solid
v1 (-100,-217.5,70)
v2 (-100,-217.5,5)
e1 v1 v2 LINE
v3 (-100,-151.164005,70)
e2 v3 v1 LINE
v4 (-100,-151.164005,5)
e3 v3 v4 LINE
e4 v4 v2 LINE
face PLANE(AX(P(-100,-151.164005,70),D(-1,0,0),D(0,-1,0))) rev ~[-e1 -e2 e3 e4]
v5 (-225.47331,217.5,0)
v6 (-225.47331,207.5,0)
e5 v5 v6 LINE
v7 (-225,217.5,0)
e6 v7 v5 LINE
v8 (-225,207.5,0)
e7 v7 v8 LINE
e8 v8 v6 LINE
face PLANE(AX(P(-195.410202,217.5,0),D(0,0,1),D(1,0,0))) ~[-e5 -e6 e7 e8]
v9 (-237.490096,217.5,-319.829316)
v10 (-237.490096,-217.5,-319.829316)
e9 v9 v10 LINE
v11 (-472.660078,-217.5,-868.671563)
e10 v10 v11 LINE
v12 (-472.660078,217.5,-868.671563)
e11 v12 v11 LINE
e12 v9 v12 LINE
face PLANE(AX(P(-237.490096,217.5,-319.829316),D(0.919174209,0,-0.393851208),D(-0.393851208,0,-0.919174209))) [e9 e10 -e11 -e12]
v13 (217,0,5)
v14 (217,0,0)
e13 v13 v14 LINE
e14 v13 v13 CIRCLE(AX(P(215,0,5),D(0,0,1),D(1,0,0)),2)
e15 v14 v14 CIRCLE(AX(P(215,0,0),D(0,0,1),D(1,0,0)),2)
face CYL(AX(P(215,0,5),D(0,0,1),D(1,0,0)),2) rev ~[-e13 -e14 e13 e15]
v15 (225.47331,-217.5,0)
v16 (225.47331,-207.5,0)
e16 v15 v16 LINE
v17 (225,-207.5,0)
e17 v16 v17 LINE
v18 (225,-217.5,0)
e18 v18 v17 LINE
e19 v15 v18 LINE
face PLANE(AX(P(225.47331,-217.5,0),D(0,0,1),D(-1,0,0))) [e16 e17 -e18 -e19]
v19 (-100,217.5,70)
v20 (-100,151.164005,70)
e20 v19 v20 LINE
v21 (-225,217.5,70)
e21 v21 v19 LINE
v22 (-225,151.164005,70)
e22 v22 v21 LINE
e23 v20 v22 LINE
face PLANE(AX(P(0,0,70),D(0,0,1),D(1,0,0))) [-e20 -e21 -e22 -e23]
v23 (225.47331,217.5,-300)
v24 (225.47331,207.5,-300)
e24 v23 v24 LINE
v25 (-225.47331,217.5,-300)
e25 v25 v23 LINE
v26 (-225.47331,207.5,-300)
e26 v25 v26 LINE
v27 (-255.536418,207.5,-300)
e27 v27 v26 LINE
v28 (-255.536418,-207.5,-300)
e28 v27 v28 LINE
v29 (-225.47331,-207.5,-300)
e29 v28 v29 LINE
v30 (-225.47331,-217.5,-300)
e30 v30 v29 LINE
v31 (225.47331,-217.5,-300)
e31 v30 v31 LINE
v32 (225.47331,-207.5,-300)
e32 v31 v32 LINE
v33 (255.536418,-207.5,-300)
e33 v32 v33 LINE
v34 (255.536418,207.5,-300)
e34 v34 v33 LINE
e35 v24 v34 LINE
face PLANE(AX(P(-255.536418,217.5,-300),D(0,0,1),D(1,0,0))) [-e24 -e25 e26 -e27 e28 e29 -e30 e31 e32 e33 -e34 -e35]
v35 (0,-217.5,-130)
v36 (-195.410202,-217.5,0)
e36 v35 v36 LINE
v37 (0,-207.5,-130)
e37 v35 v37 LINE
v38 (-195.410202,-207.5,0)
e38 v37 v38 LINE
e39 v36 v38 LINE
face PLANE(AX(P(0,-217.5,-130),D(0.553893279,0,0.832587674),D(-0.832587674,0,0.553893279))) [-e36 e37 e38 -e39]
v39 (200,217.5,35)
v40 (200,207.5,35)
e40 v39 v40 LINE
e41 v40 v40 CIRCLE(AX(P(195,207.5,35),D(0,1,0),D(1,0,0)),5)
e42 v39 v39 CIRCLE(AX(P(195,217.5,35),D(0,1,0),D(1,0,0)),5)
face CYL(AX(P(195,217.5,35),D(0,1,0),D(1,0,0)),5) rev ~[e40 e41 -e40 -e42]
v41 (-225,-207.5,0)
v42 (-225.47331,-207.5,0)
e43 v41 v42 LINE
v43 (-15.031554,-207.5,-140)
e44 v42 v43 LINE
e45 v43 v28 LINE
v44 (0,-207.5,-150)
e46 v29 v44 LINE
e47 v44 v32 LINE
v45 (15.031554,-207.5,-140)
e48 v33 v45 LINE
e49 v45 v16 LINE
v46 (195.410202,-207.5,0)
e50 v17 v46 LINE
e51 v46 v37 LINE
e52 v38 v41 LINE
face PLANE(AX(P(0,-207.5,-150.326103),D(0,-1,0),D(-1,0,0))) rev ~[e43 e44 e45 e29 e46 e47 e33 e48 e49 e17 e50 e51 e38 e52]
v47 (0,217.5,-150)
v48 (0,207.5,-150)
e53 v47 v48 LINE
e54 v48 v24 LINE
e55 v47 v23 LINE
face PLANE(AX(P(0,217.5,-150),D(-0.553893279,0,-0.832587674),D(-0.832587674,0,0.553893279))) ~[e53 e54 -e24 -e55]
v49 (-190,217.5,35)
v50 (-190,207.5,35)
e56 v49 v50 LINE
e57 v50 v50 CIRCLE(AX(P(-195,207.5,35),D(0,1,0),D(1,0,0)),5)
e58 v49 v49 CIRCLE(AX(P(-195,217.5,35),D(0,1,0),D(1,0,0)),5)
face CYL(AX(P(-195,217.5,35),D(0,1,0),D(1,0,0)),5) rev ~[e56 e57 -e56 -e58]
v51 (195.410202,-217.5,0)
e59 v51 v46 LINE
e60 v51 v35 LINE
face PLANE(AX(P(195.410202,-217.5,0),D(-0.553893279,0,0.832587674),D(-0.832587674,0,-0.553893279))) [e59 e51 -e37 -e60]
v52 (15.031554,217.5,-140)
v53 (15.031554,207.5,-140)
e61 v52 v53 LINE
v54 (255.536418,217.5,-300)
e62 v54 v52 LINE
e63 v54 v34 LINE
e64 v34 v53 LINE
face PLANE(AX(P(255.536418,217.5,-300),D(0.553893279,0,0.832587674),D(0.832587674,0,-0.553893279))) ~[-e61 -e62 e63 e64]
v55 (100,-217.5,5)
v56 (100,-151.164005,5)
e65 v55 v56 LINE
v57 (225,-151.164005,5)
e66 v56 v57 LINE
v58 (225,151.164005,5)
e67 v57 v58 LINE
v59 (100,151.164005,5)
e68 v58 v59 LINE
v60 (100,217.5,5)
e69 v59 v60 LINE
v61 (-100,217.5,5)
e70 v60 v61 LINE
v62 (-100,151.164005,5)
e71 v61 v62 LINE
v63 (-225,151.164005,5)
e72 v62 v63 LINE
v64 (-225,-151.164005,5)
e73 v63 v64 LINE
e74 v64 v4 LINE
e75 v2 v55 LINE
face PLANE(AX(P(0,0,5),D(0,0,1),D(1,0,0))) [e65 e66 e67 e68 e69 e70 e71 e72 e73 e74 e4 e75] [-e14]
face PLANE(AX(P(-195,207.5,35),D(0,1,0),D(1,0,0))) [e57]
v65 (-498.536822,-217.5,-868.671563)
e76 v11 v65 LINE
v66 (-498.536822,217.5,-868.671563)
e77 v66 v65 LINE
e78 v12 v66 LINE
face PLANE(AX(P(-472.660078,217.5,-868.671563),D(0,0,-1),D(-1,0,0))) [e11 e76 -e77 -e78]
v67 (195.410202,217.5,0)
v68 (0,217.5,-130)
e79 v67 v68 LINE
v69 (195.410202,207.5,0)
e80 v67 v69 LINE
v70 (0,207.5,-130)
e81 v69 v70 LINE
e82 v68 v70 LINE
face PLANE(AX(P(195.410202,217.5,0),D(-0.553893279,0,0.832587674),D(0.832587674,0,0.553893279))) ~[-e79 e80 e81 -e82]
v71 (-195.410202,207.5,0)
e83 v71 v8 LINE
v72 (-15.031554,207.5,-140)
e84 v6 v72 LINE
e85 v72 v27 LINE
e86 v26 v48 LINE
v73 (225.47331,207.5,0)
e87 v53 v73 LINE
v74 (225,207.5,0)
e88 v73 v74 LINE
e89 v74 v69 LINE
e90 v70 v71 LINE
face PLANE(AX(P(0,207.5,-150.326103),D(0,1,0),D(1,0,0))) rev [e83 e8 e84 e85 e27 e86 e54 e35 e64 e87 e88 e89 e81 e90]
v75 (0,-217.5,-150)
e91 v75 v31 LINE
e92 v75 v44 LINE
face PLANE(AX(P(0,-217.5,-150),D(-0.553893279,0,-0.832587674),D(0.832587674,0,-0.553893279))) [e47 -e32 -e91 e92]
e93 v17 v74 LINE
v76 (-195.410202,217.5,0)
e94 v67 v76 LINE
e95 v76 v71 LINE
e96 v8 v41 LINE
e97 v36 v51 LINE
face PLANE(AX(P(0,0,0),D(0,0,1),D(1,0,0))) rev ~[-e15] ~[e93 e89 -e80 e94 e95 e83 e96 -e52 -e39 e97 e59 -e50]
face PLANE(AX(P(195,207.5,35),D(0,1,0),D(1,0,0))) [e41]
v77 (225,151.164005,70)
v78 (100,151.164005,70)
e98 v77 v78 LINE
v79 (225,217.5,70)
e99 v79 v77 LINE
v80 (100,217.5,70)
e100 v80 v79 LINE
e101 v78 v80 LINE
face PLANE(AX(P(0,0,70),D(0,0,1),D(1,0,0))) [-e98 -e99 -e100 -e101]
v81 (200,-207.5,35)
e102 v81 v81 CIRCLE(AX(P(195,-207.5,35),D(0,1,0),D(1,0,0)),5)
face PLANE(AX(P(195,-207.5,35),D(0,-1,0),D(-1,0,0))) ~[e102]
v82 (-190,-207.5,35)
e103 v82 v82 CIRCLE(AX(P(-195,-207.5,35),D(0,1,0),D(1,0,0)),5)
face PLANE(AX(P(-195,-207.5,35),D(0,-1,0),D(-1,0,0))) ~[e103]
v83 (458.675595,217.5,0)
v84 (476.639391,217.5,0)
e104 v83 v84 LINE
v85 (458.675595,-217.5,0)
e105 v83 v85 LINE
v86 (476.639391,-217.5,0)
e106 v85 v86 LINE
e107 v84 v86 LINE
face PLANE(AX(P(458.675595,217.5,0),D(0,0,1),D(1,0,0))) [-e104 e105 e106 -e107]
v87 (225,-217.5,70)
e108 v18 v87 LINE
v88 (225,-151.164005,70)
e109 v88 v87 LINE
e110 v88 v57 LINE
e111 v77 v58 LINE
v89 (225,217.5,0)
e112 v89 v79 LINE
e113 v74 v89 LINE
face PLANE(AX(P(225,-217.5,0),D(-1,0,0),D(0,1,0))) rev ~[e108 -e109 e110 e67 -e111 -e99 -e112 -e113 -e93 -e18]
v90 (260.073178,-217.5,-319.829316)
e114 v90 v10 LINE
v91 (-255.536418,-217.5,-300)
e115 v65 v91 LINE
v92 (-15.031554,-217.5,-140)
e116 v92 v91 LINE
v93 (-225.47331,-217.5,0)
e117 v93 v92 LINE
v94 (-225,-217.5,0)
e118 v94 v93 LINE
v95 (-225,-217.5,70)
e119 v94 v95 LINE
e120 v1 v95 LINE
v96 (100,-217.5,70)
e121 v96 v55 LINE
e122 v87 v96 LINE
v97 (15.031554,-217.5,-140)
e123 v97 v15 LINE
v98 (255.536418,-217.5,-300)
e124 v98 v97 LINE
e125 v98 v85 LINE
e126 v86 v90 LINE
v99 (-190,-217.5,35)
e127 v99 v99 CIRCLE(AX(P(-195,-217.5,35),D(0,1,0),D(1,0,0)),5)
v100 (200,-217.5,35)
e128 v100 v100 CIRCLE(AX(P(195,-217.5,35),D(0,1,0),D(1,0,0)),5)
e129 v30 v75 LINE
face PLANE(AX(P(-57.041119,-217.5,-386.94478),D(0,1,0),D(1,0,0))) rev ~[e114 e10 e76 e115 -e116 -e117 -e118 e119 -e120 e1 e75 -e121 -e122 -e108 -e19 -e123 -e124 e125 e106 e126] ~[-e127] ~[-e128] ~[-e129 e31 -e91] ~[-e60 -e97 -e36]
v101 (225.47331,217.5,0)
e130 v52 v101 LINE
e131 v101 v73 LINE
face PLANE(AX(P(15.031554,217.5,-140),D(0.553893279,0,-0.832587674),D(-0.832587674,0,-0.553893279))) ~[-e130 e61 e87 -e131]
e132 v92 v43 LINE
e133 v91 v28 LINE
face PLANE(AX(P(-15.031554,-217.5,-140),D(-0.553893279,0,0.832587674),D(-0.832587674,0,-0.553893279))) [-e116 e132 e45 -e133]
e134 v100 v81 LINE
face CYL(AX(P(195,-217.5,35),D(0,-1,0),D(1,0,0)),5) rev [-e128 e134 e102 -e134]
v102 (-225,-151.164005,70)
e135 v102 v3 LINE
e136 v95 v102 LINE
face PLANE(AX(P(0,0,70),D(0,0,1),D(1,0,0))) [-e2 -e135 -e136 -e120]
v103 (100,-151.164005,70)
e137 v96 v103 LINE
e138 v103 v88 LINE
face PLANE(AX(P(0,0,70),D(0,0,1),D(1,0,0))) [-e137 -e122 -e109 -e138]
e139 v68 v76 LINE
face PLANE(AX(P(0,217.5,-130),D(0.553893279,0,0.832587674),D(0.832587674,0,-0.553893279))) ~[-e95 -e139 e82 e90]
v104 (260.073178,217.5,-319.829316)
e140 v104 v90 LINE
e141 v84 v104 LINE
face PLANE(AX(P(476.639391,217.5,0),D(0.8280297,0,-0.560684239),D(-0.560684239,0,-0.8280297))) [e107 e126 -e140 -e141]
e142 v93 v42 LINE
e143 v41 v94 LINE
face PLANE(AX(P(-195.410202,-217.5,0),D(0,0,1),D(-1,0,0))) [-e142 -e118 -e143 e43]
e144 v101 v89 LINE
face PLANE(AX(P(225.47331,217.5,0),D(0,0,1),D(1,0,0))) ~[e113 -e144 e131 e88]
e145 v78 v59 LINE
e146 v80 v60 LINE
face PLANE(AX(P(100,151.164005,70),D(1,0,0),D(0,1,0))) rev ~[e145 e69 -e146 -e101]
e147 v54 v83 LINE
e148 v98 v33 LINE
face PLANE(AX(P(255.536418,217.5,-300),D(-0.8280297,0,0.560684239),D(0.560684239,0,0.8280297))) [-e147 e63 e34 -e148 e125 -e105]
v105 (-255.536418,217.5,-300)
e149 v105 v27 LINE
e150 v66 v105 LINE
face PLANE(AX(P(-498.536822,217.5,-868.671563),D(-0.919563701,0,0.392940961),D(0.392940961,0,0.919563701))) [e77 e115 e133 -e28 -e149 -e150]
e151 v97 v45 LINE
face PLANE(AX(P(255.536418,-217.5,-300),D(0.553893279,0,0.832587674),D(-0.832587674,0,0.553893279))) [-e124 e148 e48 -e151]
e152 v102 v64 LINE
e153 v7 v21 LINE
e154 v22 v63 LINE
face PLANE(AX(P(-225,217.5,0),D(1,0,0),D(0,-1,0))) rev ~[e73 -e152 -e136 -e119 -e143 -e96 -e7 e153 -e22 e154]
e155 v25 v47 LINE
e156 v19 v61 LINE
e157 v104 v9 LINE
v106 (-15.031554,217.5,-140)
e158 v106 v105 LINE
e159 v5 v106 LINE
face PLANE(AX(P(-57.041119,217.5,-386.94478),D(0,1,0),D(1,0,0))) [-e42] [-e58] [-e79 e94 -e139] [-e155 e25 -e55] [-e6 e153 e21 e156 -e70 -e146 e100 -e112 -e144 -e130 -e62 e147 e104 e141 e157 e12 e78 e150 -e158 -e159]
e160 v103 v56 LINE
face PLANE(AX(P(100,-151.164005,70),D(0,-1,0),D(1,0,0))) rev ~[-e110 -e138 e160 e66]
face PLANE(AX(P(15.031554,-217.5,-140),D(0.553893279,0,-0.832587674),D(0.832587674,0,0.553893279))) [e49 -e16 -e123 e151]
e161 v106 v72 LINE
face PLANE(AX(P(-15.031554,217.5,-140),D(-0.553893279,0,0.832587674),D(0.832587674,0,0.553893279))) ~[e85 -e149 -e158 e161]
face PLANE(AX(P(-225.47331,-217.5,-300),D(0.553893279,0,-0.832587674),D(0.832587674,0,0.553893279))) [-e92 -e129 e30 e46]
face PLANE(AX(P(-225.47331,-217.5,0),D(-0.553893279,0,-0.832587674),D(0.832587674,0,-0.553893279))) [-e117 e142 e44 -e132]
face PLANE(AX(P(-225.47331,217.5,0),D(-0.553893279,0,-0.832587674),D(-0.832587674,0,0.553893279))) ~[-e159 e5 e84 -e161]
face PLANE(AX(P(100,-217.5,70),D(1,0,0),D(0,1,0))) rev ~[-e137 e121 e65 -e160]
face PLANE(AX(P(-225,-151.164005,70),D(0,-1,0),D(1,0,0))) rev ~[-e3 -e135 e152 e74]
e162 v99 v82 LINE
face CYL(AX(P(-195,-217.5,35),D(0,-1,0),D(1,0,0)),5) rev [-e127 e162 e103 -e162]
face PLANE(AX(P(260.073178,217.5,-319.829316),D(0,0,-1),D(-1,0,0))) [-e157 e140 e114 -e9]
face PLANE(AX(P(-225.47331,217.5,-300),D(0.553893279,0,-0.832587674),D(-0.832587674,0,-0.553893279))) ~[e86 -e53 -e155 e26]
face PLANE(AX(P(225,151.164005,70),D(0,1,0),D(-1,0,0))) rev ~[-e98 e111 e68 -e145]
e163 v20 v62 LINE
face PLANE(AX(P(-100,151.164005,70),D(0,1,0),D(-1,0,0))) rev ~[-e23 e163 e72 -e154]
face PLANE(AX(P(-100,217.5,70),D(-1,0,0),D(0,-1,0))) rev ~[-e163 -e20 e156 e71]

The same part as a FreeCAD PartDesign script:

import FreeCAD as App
import Part
import Sketcher

V = App.Vector
Q = App.Units.Quantity


def add_polygon(sketch, points):
    """Adds a closed chain of lines whose ends are joined by coincident constraints."""
    first, n = sketch.GeometryCount, len(points)
    for a, b in zip(points, points[1:] + points[:1]):
        sketch.addGeometry(Part.LineSegment(App.Vector(*a, 0), App.Vector(*b, 0)), False)
    for i in range(n):
        sketch.addConstraint(Sketcher.Constraint("Coincident", first + i, 2, first + (i + 1) % n, 1))

doc = App.newDocument("Part")
body = doc.addObject("PartDesign::Body", "Body")

sketch1 = body.newObject("Sketcher::SketchObject", "Sketch")
sketch1.AttachmentSupport = (doc.getObject("XY_Plane"), [""])
sketch1.MapMode = "FlatFace"
add_polygon(sketch1, [(225, 217.5), (-225, 217.5), (-225, -217.5), (225, -217.5)])
sketch1.addConstraint(Sketcher.Constraint("Horizontal", 0))
sketch1.addConstraint(Sketcher.Constraint("Vertical", 1))
sketch1.addConstraint(Sketcher.Constraint("Horizontal", 2))
sketch1.addConstraint(Sketcher.Constraint("Vertical", 3))
sketch1.addConstraint(Sketcher.Constraint("Symmetric", 0, 2, 2, 2, -1, 1))
sketch1.addConstraint(Sketcher.Constraint("DistanceX", 0, 2, 0, 1, Q("450 mm")))
sketch1.addConstraint(Sketcher.Constraint("DistanceY", 1, 2, 1, 1, Q("435 mm")))
pad1 = body.newObject("PartDesign::Pad", "Pad")
pad1.Profile = sketch1
pad1.Length = 70

sketch2 = body.newObject("Sketcher::SketchObject", "Sketch001")
sketch2.AttachmentSupport = (doc.getObject("XY_Plane"), [""])
sketch2.MapMode = "FlatFace"
sketch2.AttachmentOffset = App.Placement(V(0, 0, 70), App.Rotation())
add_polygon(sketch2, [(-100, 217.5), (-100, 151.164005), (-225, 151.164005), (-225, -151.164005), (-100, -151.164005), (-100, -217.5), (100, -217.5), (100, -151.164005), (225, -151.164005), (225, 151.164005), (100, 151.164005), (100, 217.5)])
sketch2.addConstraint(Sketcher.Constraint("Vertical", 0))
sketch2.addConstraint(Sketcher.Constraint("Horizontal", 1))
sketch2.addConstraint(Sketcher.Constraint("Vertical", 2))
sketch2.addConstraint(Sketcher.Constraint("Horizontal", 3))
sketch2.addConstraint(Sketcher.Constraint("Vertical", 4))
sketch2.addConstraint(Sketcher.Constraint("Horizontal", 5))
sketch2.addConstraint(Sketcher.Constraint("Vertical", 6))
sketch2.addConstraint(Sketcher.Constraint("Horizontal", 7))
sketch2.addConstraint(Sketcher.Constraint("Vertical", 8))
sketch2.addConstraint(Sketcher.Constraint("Horizontal", 9))
sketch2.addConstraint(Sketcher.Constraint("Vertical", 10))
sketch2.addConstraint(Sketcher.Constraint("Horizontal", 11))
sketch2.addConstraint(Sketcher.Constraint("Symmetric", 0, 2, 6, 2, -1, 1))
sketch2.addConstraint(Sketcher.Constraint("Symmetric", 2, 2, 8, 2, -1, 1))
sketch2.addConstraint(Sketcher.Constraint("Symmetric", 4, 2, 10, 2, -1, 1))
sketch2.addConstraint(Sketcher.Constraint("Symmetric", 3, 2, 6, 2, -2))
sketch2.addConstraint(Sketcher.Constraint("DistanceX", 1, 2, 1, 1, Q("125 mm")))
sketch2.addConstraint(Sketcher.Constraint("DistanceX", 5, 1, 5, 2, Q("200 mm")))
sketch2.addConstraint(Sketcher.Constraint("DistanceY", 4, 2, -1, 1, Q("217.5 mm")))
sketch2.addConstraint(Sketcher.Constraint("DistanceY", 2, 2, 2, 1, Q("302.328009 mm")))
pocket1 = body.newObject("PartDesign::Pocket", "Pocket")
pocket1.Profile = sketch2
pocket1.Type = "TwoLengths"
pocket1.Length = 1
pocket1.Length2 = 65
pocket1.Reversed = True

sketch3 = body.newObject("Sketcher::SketchObject", "Sketch002")
sketch3.AttachmentSupport = (doc.getObject("XY_Plane"), [""])
sketch3.MapMode = "FlatFace"
sketch3.AttachmentOffset = App.Placement(V(0, 0, 5), App.Rotation())
sketch3.addGeometry(Part.Circle(V(215, 0, 0), V(0, 0, 1), 2), False)
sketch3.addConstraint(Sketcher.Constraint("PointOnObject", 0, 3, -1))
sketch3.addConstraint(Sketcher.Constraint("Diameter", 0, Q("4 mm")))
sketch3.addConstraint(Sketcher.Constraint("DistanceX", -1, 1, 0, 3, Q("215 mm")))
pocket2 = body.newObject("PartDesign::Pocket", "Pocket001")
pocket2.Profile = sketch3
pocket2.Length = 10

sketch4 = body.newObject("Sketcher::SketchObject", "Sketch003")
sketch4.AttachmentSupport = (doc.getObject("XZ_Plane"), [""])
sketch4.MapMode = "FlatFace"
sketch4.AttachmentOffset = App.Placement(V(0, 0, -217.5), App.Rotation())
sketch4.addGeometry(Part.Circle(V(-195, 35, 0), V(0, 0, 1), 5), False)
sketch4.addGeometry(Part.Circle(V(195, 35, 0), V(0, 0, 1), 5), False)
sketch4.addConstraint(Sketcher.Constraint("Equal", 0, 1))
sketch4.addConstraint(Sketcher.Constraint("Symmetric", 0, 3, 1, 3, -2))
sketch4.addConstraint(Sketcher.Constraint("Diameter", 0, Q("10 mm")))
sketch4.addConstraint(Sketcher.Constraint("DistanceX", 0, 3, -1, 1, Q("195 mm")))
sketch4.addConstraint(Sketcher.Constraint("DistanceY", -1, 1, 0, 3, Q("35 mm")))
pocket3 = body.newObject("PartDesign::Pocket", "Pocket002")
pocket3.Profile = sketch4
pocket3.Length = 10
pocket3.Reversed = True
doc.recompute()

mirrored = body.newObject("PartDesign::Mirrored", "Mirrored")
mirrored.Originals = [pocket3]
mirrored.MirrorPlane = (doc.getObject("XZ_Plane"), [""])
body.Tip = mirrored

sketch5 = body.newObject("Sketcher::SketchObject", "Sketch004")
sketch5.AttachmentSupport = (doc.getObject("XZ_Plane"), [""])
sketch5.MapMode = "FlatFace"
sketch5.AttachmentOffset = App.Placement(V(0, 0, 217.5), App.Rotation())
add_polygon(sketch5, [(15.031554, -140), (225.47331, 0), (195.410202, 0), (0, -130), (-195.410202, 0), (-225.47331, 0), (-15.031554, -140), (-255.536418, -300), (-225.47331, -300), (0, -150), (225.47331, -300), (255.536418, -300)])
sketch5.addConstraint(Sketcher.Constraint("Horizontal", 1))
sketch5.addConstraint(Sketcher.Constraint("Horizontal", 4))
sketch5.addConstraint(Sketcher.Constraint("Horizontal", 7))
sketch5.addConstraint(Sketcher.Constraint("Horizontal", 10))
sketch5.addConstraint(Sketcher.Constraint("Symmetric", 1, 2, 3, 2, -1, 1))
sketch5.addConstraint(Sketcher.Constraint("Symmetric", 0, 2, 4, 2, -2))
sketch5.addConstraint(Sketcher.Constraint("Symmetric", 7, 2, 9, 2, -2))
sketch5.addConstraint(Sketcher.Constraint("Symmetric", 5, 2, 11, 2, -2))
sketch5.addConstraint(Sketcher.Constraint("PointOnObject", 2, 2, -2))
sketch5.addConstraint(Sketcher.Constraint("PointOnObject", 8, 2, -2))
sketch5.addConstraint(Sketcher.Constraint("Parallel", 0, 2))
sketch5.addConstraint(Sketcher.Constraint("Parallel", 2, 6))
sketch5.addConstraint(Sketcher.Constraint("Parallel", 6, 8))
sketch5.addConstraint(Sketcher.Constraint("Parallel", 9, 11))
sketch5.addConstraint(Sketcher.Constraint("Vertical", 4, 2, 7, 2))
sketch5.addConstraint(Sketcher.Constraint("Equal", 4, 7))
sketch5.addConstraint(Sketcher.Constraint("DistanceY", 2, 2, -1, 1, Q("130 mm")))
sketch5.addConstraint(Sketcher.Constraint("DistanceY", 5, 2, -1, 1, Q("140 mm")))
sketch5.addConstraint(Sketcher.Constraint("DistanceY", 6, 2, -1, 1, Q("300 mm")))
sketch5.addConstraint(Sketcher.Constraint("DistanceX", 1, 2, 1, 1, Q("30.063108 mm")))
pad2 = body.newObject("PartDesign::Pad", "Pad001")
pad2.Profile = sketch5
pad2.Length = 10
pad2.Reversed = True
doc.recompute()

mirrored2 = body.newObject("PartDesign::Mirrored", "Mirrored001")
mirrored2.Originals = [pad2]
mirrored2.MirrorPlane = (doc.getObject("XZ_Plane"), [""])
body.Tip = mirrored2

sketch6 = body.newObject("Sketcher::SketchObject", "Sketch005")
sketch6.AttachmentSupport = (doc.getObject("XZ_Plane"), [""])
sketch6.MapMode = "FlatFace"
sketch6.AttachmentOffset = App.Placement(V(0, 0, -217.5), App.Rotation())
add_polygon(sketch6, [(-255.536418, -300), (255.536418, -300), (458.675595, 0), (476.639391, 0), (260.073178, -319.829316), (-237.490096, -319.829316), (-472.660078, -868.671563), (-498.536822, -868.671563)])
sketch6.addConstraint(Sketcher.Constraint("Horizontal", 0))
sketch6.addConstraint(Sketcher.Constraint("Horizontal", 2))
sketch6.addConstraint(Sketcher.Constraint("Horizontal", 4))
sketch6.addConstraint(Sketcher.Constraint("Horizontal", 6))
sketch6.addConstraint(Sketcher.Constraint("PointOnObject", 1, 2, -1))
sketch6.addConstraint(Sketcher.Constraint("Parallel", 1, 3))
sketch6.addConstraint(Sketcher.Constraint("DistanceY", 0, 2, -1, 1, Q("300 mm")))
sketch6.addConstraint(Sketcher.Constraint("DistanceX", 6, 2, 3, 2, Q("758.609999 mm")))
sketch6.addConstraint(Sketcher.Constraint("Distance", 5, Q("597.103619 mm")))
sketch6.addConstraint(Sketcher.Constraint("Distance", 7, Q("618.414539 mm")))
sketch6.addConstraint(Sketcher.Constraint("DistanceX", 0, 1, 0, 2, Q("511.072836 mm")))
sketch6.addConstraint(Sketcher.Constraint("DistanceX", 2, 1, 2, 2, Q("17.963796 mm")))
sketch6.addConstraint(Sketcher.Constraint("DistanceX", 4, 2, 4, 1, Q("497.563274 mm")))
sketch6.addConstraint(Sketcher.Constraint("DistanceX", 6, 2, 6, 1, Q("25.876743 mm")))
sketch6.addConstraint(Sketcher.Constraint("DistanceX", -1, 1, 0, 2, Q("255.536418 mm")))
sketch6.addConstraint(Sketcher.Constraint("DistanceX", -1, 1, 2, 2, Q("476.639391 mm")))
pad3 = body.newObject("PartDesign::Pad", "Pad002")
pad3.Profile = sketch6
pad3.Length = 435

doc.recompute()
